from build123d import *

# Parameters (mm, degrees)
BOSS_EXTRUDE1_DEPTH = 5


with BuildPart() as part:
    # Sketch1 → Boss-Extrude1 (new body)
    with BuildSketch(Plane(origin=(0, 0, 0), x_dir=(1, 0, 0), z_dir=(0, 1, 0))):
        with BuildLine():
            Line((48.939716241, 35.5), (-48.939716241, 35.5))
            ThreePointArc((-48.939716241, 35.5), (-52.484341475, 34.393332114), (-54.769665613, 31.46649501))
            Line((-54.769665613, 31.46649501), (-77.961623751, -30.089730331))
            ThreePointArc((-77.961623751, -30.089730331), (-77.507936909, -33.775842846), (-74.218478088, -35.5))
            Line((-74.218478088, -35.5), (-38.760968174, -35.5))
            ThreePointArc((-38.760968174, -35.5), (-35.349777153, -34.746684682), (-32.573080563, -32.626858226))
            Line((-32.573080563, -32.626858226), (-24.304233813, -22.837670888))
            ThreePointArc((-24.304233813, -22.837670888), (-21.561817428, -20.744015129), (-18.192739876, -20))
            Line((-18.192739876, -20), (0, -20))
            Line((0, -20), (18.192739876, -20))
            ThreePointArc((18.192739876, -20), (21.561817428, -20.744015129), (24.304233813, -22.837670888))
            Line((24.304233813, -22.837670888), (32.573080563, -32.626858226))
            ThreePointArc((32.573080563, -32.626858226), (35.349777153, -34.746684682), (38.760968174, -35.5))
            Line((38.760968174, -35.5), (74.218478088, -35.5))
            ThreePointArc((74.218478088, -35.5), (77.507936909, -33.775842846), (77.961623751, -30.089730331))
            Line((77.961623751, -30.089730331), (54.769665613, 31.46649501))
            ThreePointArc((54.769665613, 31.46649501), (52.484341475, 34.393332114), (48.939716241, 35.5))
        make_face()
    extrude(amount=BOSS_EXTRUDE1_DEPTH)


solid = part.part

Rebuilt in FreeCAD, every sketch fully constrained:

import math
import FreeCAD as App
import Part
import Sketcher

V = App.Vector

doc = App.newDocument("Part")
body = doc.addObject("PartDesign::Body", "Body")

# Sketch on XZ plane
sketch1 = body.newObject("Sketcher::SketchObject", "Sketch")
sketch1.AttachmentSupport = (doc.getObject("XZ_Plane"), [""])
sketch1.MapMode = "FlatFace"
sketch1.addGeometry(Part.LineSegment(V(48.939716, -35.5, 0), V(-48.939716, -35.5, 0)), False)
sketch1.addGeometry(Part.ArcOfCircle(Part.Circle(V(-48.939716, -29.27, 0), V(0, 0, 1), 6.23), math.radians(-159.35557), math.radians(-90)), False)
sketch1.addGeometry(Part.LineSegment(V(-54.769666, -31.466495, 0), V(-77.961624, 30.08973, 0)), False)
sketch1.addGeometry(Part.ArcOfCircle(Part.Circle(V(-74.218478, 31.5, 0), V(0, 0, 1), 4), math.radians(90), math.radians(200.64443)), False)
sketch1.addGeometry(Part.LineSegment(V(-74.218478, 35.5, 0), V(-38.760968, 35.5, 0)), False)
sketch1.addGeometry(Part.ArcOfCircle(Part.Circle(V(-38.760968, 27.4, 0), V(0, 0, 1), 8.1), math.radians(40.187508), math.radians(90)), False)
sketch1.addGeometry(Part.LineSegment(V(-32.573081, 32.626858, 0), V(-24.304234, 22.837671, 0)), False)
sketch1.addGeometry(Part.ArcOfCircle(Part.Circle(V(-18.19274, 28, 0), V(0, 0, 1), 8), math.radians(-139.812492), math.radians(-90)), False)
sketch1.addGeometry(Part.LineSegment(V(-18.19274, 20, 0), V(18.19274, 20, 0)), False)
sketch1.addGeometry(Part.ArcOfCircle(Part.Circle(V(18.19274, 28, 0), V(0, 0, 1), 8), math.radians(-90), math.radians(-40.187508)), False)
sketch1.addGeometry(Part.LineSegment(V(24.304234, 22.837671, 0), V(32.573081, 32.626858, 0)), False)
sketch1.addGeometry(Part.ArcOfCircle(Part.Circle(V(38.760968, 27.4, 0), V(0, 0, 1), 8.1), math.radians(90), math.radians(139.812492)), False)
sketch1.addGeometry(Part.LineSegment(V(38.760968, 35.5, 0), V(74.218478, 35.5, 0)), False)
sketch1.addGeometry(Part.ArcOfCircle(Part.Circle(V(74.218478, 31.5, 0), V(0, 0, 1), 4), math.radians(-20.64443), math.radians(90)), False)
sketch1.addGeometry(Part.LineSegment(V(77.961624, 30.08973, 0), V(54.769666, -31.466495, 0)), False)
sketch1.addGeometry(Part.ArcOfCircle(Part.Circle(V(48.939716, -29.27, 0), V(0, 0, 1), 6.23), math.radians(-90), math.radians(-20.64443)), False)
sketch1.addConstraint(Sketcher.Constraint("Tangent", 0, 2, 1, 2))
sketch1.addConstraint(Sketcher.Constraint("Tangent", 1, 1, 2, 1))
sketch1.addConstraint(Sketcher.Constraint("Tangent", 2, 2, 3, 2))
sketch1.addConstraint(Sketcher.Constraint("Tangent", 3, 1, 4, 1))
sketch1.addConstraint(Sketcher.Constraint("Tangent", 4, 2, 5, 2))
sketch1.addConstraint(Sketcher.Constraint("Tangent", 5, 1, 6, 1))
sketch1.addConstraint(Sketcher.Constraint("Tangent", 6, 2, 7, 1))
sketch1.addConstraint(Sketcher.Constraint("Tangent", 7, 2, 8, 1))
sketch1.addConstraint(Sketcher.Constraint("Tangent", 8, 2, 9, 1))
sketch1.addConstraint(Sketcher.Constraint("Tangent", 9, 2, 10, 1))
sketch1.addConstraint(Sketcher.Constraint("Tangent", 10, 2, 11, 2))
sketch1.addConstraint(Sketcher.Constraint("Tangent", 11, 1, 12, 1))
sketch1.addConstraint(Sketcher.Constraint("Tangent", 12, 2, 13, 2))
sketch1.addConstraint(Sketcher.Constraint("Tangent", 13, 1, 14, 1))
sketch1.addConstraint(Sketcher.Constraint("Tangent", 14, 2, 15, 2))
sketch1.addConstraint(Sketcher.Constraint("Tangent", 15, 1, 0, 1))
sketch1.addConstraint(Sketcher.Constraint("Horizontal", 0))
sketch1.addConstraint(Sketcher.Constraint("Horizontal", 4))
sketch1.addConstraint(Sketcher.Constraint("Horizontal", 8))
sketch1.addConstraint(Sketcher.Constraint("Horizontal", 12))
sketch1.addConstraint(Sketcher.Constraint("Equal", 7, 9))
sketch1.addConstraint(Sketcher.Constraint("Equal", 5, 11))
sketch1.addConstraint(Sketcher.Constraint("Equal", 3, 13))
sketch1.addConstraint(Sketcher.Constraint("Equal", 1, 15))
sketch1.addConstraint(Sketcher.Constraint("Symmetric", 5, 3, 11, 3, -2))
sketch1.addConstraint(Sketcher.Constraint("Symmetric", 2, 2, 13, 1, -2))
sketch1.addConstraint(Sketcher.Constraint("Horizontal", 6, 2, 9, 2))
sketch1.addConstraint(Sketcher.Constraint("Radius", 3, 4.0))
sketch1.addConstraint(Sketcher.Constraint("Radius", 7, 8.0))
sketch1.addConstraint(Sketcher.Constraint("Radius", 5, 8.1))
sketch1.addConstraint(Sketcher.Constraint("Radius", 1, 6.23))
sketch1.addConstraint(Sketcher.Constraint("DistanceY", -1, 1, 7, 3, 28.0))
sketch1.addConstraint(Sketcher.Constraint("DistanceY", 0, 2, 3, 3, 67.0))
sketch1.addConstraint(Sketcher.Constraint("DistanceY", -1, 1, 3, 3, 31.5))
sketch1.addConstraint(Sketcher.Constraint("DistanceX", 4, 1, 4, 2, 35.45751))
sketch1.addConstraint(Sketcher.Constraint("DistanceX", 8, 1, 8, 2, 36.38548))
sketch1.addConstraint(Sketcher.Constraint("Distance", 2, 65.780208))
sketch1.addConstraint(Sketcher.Constraint("DistanceX", 0, 2, 0, 1, 97.879432))
pad1 = body.newObject("PartDesign::Pad", "Pad")
pad1.Profile = sketch1
pad1.Length = 5
pad1.Reversed = True

doc.recompute()
